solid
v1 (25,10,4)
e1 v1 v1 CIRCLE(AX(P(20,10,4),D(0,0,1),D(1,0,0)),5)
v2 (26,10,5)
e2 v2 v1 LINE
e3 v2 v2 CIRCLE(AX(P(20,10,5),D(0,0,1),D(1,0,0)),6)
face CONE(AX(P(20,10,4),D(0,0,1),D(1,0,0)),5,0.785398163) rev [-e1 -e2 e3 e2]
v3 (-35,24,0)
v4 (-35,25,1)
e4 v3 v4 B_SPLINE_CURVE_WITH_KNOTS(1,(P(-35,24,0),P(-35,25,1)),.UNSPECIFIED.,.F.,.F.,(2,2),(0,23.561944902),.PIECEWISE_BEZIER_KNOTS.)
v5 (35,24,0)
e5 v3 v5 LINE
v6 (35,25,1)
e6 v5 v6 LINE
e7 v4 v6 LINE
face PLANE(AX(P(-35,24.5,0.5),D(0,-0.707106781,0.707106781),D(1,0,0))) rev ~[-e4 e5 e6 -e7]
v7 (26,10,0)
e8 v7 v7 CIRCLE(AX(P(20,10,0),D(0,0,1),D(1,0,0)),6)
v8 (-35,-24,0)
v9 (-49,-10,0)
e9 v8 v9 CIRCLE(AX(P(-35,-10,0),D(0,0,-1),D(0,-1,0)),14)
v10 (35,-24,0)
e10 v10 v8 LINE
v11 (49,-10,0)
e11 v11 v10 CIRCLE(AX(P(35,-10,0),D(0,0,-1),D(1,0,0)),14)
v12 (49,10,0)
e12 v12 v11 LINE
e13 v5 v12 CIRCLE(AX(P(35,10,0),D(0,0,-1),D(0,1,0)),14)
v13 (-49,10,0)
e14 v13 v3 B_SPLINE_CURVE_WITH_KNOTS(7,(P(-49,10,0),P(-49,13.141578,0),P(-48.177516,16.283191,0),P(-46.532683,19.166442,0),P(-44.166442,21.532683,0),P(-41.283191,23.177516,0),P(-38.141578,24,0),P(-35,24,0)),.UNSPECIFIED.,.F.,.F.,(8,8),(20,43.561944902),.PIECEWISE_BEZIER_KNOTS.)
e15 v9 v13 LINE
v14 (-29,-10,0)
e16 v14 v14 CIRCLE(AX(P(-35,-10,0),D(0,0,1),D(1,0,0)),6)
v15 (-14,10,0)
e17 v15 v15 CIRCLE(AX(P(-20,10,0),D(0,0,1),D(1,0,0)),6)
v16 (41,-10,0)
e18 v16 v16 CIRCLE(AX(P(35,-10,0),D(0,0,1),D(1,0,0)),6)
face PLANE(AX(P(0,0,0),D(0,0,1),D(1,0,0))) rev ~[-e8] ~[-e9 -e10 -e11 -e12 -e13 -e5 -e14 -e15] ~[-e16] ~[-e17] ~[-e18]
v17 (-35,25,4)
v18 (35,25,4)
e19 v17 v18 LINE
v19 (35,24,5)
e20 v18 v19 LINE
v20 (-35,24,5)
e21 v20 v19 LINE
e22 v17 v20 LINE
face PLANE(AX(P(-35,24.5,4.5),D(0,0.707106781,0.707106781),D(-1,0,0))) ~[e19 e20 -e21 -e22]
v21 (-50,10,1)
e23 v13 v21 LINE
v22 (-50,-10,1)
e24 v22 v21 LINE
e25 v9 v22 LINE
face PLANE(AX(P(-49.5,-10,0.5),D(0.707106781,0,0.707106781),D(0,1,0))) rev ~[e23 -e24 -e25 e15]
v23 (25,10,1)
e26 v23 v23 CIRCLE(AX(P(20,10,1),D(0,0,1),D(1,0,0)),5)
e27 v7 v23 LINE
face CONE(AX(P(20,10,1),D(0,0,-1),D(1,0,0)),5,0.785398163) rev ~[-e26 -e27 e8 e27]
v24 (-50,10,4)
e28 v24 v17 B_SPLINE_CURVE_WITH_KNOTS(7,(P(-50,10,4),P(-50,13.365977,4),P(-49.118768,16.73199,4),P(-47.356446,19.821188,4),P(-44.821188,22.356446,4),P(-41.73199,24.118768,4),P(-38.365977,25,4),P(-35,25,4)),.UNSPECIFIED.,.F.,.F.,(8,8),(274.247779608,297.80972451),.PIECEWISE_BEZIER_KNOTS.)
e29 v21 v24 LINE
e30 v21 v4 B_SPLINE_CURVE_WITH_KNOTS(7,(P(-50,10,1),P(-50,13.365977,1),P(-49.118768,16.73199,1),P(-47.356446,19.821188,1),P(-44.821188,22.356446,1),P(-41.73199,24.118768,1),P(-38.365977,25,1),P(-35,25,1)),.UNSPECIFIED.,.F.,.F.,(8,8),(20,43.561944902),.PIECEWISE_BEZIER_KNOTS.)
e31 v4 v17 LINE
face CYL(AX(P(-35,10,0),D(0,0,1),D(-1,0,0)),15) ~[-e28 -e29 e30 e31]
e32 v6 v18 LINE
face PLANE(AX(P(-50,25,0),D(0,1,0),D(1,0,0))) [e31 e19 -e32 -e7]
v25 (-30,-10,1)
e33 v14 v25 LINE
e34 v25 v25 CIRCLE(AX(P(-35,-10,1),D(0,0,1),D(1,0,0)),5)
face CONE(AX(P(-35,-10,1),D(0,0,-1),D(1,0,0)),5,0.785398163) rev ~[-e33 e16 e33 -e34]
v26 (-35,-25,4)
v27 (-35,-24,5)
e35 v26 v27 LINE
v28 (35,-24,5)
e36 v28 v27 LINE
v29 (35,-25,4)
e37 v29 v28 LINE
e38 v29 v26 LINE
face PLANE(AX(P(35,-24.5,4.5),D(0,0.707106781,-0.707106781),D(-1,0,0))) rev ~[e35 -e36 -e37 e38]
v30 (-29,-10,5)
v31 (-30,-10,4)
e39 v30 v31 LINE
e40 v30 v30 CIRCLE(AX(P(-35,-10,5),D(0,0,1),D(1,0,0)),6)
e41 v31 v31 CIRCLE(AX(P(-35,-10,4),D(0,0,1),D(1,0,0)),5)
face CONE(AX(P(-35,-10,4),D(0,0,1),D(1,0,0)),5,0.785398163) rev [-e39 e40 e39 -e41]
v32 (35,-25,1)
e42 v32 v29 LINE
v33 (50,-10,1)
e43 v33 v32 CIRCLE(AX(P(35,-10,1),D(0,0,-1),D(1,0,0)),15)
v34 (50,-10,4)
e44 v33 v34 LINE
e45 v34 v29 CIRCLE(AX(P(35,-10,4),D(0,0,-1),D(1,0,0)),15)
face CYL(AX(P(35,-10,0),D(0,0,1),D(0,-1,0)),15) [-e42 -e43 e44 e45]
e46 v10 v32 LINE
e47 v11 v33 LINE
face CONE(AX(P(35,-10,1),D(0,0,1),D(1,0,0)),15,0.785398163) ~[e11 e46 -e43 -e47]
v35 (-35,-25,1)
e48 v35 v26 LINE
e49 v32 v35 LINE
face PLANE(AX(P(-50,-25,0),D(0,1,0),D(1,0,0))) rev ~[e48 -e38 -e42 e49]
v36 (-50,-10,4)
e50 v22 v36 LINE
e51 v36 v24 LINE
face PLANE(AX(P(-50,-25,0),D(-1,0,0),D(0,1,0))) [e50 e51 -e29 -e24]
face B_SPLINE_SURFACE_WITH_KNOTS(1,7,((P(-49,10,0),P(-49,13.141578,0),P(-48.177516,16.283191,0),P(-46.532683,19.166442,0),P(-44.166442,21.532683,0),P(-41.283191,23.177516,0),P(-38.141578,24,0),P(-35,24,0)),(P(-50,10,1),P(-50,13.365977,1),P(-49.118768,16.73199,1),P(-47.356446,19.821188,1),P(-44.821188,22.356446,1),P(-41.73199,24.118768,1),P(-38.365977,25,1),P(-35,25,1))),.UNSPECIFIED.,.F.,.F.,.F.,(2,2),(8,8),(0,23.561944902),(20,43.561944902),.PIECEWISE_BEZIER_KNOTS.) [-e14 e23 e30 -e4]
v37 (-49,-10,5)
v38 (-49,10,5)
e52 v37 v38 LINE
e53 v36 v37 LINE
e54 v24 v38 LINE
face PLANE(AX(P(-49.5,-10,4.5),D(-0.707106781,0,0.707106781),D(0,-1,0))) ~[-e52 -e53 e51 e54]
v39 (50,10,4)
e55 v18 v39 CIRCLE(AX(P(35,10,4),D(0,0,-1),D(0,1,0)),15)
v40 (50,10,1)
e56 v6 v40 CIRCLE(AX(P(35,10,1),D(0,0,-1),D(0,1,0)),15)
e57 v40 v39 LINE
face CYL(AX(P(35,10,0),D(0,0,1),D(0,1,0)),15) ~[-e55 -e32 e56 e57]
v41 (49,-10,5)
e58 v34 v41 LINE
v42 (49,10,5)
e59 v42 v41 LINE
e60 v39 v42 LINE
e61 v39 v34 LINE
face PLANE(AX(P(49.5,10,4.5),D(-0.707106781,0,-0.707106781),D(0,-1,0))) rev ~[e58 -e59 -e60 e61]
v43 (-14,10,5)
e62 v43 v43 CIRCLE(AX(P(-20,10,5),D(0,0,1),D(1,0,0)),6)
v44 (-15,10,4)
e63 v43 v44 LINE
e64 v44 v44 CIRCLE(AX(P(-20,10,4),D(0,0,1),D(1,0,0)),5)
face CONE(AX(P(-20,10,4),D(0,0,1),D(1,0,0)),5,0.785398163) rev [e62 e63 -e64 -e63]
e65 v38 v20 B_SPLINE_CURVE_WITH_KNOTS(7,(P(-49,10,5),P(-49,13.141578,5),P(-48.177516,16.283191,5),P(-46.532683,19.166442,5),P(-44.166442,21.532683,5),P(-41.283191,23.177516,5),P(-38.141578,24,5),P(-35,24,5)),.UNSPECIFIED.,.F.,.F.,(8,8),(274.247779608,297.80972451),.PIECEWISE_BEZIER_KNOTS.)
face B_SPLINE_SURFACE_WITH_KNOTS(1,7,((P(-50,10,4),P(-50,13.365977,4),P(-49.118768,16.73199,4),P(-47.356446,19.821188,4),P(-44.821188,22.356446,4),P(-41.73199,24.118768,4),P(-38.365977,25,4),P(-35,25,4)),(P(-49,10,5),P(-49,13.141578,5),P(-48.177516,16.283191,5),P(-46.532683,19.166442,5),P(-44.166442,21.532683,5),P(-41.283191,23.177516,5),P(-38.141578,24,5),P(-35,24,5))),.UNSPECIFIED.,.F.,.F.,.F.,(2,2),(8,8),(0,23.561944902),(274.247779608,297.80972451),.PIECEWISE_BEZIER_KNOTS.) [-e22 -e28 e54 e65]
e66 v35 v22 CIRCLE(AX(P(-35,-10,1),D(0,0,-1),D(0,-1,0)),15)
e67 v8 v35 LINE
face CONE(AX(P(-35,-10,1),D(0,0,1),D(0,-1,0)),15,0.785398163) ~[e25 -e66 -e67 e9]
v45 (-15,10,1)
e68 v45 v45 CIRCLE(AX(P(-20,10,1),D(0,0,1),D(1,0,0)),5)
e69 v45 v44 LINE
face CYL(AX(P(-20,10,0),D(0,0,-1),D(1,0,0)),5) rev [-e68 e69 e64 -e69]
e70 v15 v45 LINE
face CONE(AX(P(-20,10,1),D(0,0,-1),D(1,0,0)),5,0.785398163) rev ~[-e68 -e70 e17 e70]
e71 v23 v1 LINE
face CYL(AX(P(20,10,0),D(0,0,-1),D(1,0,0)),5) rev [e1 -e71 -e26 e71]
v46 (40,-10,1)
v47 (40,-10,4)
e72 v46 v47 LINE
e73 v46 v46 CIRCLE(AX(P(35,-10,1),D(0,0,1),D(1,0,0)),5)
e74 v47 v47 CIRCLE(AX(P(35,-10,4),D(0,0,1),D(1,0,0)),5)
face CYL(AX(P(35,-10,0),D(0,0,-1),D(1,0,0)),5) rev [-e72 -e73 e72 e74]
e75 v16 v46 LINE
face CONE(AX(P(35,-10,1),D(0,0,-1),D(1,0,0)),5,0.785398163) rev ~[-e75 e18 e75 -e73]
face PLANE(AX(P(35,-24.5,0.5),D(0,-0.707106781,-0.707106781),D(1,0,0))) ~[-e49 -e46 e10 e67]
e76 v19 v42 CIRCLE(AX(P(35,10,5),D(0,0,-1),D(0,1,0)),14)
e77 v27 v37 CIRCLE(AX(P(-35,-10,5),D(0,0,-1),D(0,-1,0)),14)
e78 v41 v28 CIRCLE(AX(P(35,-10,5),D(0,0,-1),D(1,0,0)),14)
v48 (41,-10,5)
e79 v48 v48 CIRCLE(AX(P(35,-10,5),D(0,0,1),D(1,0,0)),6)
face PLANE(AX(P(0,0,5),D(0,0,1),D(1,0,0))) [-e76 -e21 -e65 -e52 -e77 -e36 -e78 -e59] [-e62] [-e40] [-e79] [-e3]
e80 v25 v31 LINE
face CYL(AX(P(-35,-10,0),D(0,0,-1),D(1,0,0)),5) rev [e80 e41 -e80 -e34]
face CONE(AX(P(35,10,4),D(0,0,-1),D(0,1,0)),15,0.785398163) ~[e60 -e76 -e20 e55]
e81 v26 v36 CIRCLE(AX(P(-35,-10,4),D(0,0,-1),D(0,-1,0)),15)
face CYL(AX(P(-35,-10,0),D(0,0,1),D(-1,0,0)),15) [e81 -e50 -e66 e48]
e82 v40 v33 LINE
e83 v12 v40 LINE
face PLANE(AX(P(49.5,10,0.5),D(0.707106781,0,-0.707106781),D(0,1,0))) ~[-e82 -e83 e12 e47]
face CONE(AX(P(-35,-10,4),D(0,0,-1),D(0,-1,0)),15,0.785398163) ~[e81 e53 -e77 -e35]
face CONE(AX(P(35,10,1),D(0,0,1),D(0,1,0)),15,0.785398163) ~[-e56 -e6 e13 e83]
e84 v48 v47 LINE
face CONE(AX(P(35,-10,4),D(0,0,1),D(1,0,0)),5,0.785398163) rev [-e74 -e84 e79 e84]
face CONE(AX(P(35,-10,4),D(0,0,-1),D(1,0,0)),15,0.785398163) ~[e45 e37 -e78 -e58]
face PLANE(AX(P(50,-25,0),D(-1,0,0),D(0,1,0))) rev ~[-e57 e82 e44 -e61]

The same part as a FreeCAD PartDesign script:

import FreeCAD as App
import Part
import Sketcher

V = App.Vector


def edges_at(feature, points):
    """Names of the edges that pass closest to the given points."""
    edges = feature.Shape.Edges
    near = lambda p: min(range(len(edges)), key=lambda i: edges[i].distToShape(Part.Vertex(*p))[0])
    return sorted({f"Edge{near(p) + 1}" for p in points})


def add_polygon(sketch, points):
    """Adds a closed chain of lines whose ends are joined by coincident constraints."""
    first, n = sketch.GeometryCount, len(points)
    for a, b in zip(points, points[1:] + points[:1]):
        sketch.addGeometry(Part.LineSegment(App.Vector(*a, 0), App.Vector(*b, 0)), False)
    for i in range(n):
        sketch.addConstraint(Sketcher.Constraint("Coincident", first + i, 2, first + (i + 1) % n, 1))

doc = App.newDocument("Part")
body = doc.addObject("PartDesign::Body", "Body")

# Sketch on XY plane
sketch1 = body.newObject("Sketcher::SketchObject", "Sketch")
sketch1.AttachmentSupport = (doc.getObject("XY_Plane"), [""])
sketch1.MapMode = "FlatFace"
add_polygon(sketch1, [(-50, 25), (-50, -25), (50, -25), (50, 25)])  # lines 0-3
sketch1.addGeometry(Part.Circle(V(-35, -10, 0), V(0, 0, 1), 5), False)  # 4
sketch1.addGeometry(Part.Circle(V(35, -10, 0), V(0, 0, 1), 5), False)  # 5
sketch1.addGeometry(Part.Circle(V(-20, 10, 0), V(0, 0, 1), 5), False)  # 6
sketch1.addGeometry(Part.Circle(V(20, 10, 0), V(0, 0, 1), 5), False)  # 7
sketch1.addConstraint(Sketcher.Constraint("Vertical", 0))
sketch1.addConstraint(Sketcher.Constraint("Horizontal", 1))
sketch1.addConstraint(Sketcher.Constraint("Vertical", 2))
sketch1.addConstraint(Sketcher.Constraint("Horizontal", 3))
sketch1.addConstraint(Sketcher.Constraint("Equal", 4, 5))
sketch1.addConstraint(Sketcher.Constraint("Equal", 5, 6))
sketch1.addConstraint(Sketcher.Constraint("Equal", 6, 7))
sketch1.addConstraint(Sketcher.Constraint("Symmetric", 0, 2, 2, 2, -1, 1))
sketch1.addConstraint(Sketcher.Constraint("Symmetric", 4, 3, 5, 3, -2))
sketch1.addConstraint(Sketcher.Constraint("Symmetric", 6, 3, 7, 3, -2))
sketch1.addConstraint(Sketcher.Constraint("Diameter", 4, 10.0))
sketch1.addConstraint(Sketcher.Constraint("DistanceX", 1, 1, 1, 2, 100.0))
sketch1.addConstraint(Sketcher.Constraint("DistanceY", 0, 2, 0, 1, 50.0))
sketch1.addConstraint(Sketcher.Constraint("DistanceX", 4, 3, -1, 1, 35.0))
sketch1.addConstraint(Sketcher.Constraint("DistanceY", 4, 3, -1, 1, 10.0))
sketch1.addConstraint(Sketcher.Constraint("DistanceX", 6, 3, -1, 1, 20.0))
sketch1.addConstraint(Sketcher.Constraint("DistanceY", -1, 1, 6, 3, 10.0))
pad1 = body.newObject("PartDesign::Pad", "Pad")
pad1.Profile = sketch1
pad1.Length = 5
doc.recompute()

fillet = body.newObject("PartDesign::Fillet", "Fillet")
fillet.Base = (pad1, edges_at(pad1, [
    (-50, 25, 2.5),
    (-50, -25, 2.5),
    (50, -25, 2.5),
    (50, 25, 2.5),
]))
fillet.Radius = 15
doc.recompute()

chamfer = body.newObject("PartDesign::Chamfer", "Chamfer")
chamfer.Base = (fillet, edges_at(fillet, [
    (-25, 10, 5),
    (-40, -10, 5),
    (-25, 10, 0),
    (-40, -10, 0),
    (15, 10, 5),
    (15, 10, 0),
    (30, -10, 5),
    (30, -10, 0),
]))
chamfer.Size = 1
doc.recompute()

chamfer2 = body.newObject("PartDesign::Chamfer", "Chamfer001")
chamfer2.Base = (chamfer, edges_at(chamfer, [(-45.607, 20.607, 5), (-50, 0, 0)]))
chamfer2.Size = 1

doc.recompute()
